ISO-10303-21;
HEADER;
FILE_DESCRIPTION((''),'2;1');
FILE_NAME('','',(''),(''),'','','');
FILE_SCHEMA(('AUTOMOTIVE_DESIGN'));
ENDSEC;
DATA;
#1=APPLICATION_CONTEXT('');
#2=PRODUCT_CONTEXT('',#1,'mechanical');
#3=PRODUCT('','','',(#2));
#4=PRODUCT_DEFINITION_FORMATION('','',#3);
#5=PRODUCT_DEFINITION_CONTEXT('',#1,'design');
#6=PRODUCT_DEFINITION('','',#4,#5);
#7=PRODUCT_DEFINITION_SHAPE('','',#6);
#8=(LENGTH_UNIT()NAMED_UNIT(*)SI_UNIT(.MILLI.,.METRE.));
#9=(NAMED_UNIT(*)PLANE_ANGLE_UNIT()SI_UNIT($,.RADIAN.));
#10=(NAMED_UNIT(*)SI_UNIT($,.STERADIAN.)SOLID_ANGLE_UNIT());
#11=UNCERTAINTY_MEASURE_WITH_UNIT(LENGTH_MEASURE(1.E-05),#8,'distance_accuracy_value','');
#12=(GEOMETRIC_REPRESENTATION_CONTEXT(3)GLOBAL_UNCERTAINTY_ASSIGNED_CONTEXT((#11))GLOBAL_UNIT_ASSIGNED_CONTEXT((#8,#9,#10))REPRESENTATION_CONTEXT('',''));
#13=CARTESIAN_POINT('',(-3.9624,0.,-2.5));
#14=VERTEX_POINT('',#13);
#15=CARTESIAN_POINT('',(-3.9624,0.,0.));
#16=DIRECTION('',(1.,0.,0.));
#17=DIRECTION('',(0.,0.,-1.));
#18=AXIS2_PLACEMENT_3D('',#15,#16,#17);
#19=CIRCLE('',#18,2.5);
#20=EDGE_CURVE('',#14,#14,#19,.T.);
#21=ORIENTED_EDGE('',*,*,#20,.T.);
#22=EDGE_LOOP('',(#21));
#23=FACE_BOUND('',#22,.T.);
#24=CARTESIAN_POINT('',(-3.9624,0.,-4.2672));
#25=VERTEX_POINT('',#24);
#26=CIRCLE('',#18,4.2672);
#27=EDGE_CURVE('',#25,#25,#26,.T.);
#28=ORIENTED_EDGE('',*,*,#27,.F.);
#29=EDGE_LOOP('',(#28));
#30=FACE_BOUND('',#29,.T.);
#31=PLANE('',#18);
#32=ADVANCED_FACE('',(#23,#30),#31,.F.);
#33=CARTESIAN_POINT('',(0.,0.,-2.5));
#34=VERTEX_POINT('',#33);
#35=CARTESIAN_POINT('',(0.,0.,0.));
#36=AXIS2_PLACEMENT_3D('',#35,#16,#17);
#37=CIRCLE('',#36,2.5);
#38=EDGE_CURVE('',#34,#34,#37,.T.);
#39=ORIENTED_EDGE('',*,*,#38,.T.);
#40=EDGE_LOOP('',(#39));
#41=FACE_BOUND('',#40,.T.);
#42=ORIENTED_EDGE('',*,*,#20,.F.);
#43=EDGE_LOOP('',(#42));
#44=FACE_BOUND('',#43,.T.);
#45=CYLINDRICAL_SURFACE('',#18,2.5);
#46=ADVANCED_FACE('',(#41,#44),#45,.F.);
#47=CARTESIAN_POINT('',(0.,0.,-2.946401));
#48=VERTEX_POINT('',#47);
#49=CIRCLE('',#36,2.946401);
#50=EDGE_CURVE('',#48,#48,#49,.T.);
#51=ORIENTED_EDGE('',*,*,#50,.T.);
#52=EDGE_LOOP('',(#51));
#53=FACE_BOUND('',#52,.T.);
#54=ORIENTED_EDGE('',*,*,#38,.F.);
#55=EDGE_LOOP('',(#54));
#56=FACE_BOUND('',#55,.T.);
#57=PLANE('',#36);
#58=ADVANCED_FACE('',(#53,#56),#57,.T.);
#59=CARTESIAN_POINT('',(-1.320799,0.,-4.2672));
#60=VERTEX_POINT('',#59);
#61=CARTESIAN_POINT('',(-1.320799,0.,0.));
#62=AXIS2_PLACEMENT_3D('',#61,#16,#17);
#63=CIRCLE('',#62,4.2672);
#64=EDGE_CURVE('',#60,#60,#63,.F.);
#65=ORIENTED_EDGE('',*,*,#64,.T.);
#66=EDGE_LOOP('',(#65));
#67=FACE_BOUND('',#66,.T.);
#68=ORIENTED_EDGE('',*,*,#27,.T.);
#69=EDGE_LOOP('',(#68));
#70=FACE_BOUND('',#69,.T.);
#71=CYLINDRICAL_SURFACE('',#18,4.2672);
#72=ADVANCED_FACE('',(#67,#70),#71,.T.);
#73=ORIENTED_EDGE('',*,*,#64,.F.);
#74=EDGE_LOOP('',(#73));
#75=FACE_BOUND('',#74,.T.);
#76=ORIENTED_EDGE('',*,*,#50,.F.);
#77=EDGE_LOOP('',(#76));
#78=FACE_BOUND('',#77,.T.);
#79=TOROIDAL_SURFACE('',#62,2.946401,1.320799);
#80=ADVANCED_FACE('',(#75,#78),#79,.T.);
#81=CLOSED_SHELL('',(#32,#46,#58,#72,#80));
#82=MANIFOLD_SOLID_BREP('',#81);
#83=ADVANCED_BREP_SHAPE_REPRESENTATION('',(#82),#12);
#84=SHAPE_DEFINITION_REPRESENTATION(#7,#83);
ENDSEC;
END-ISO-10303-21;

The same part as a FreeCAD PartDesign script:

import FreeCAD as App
import Part
import Sketcher
Q = App.Units.Quantity


def edges_at(feature, points):
    """Names of the edges that pass closest to the given points."""
    edges = feature.Shape.Edges
    near = lambda p: min(range(len(edges)), key=lambda i: edges[i].distToShape(Part.Vertex(*p))[0])
    return sorted({f"Edge{near(p) + 1}" for p in points})

doc = App.newDocument("Part")
body = doc.addObject("PartDesign::Body", "Body")

# Sketch on YZ plane
sketch1 = body.newObject("Sketcher::SketchObject", "Sketch")
sketch1.AttachmentSupport = (doc.getObject("YZ_Plane"), [""])
sketch1.MapMode = "FlatFace"
sketch1.addGeometry([
    Part.Circle(App.Vector(0, 0, 0), App.Vector(0, 0, 1), 4.3),
    Part.Circle(App.Vector(0, 0, 0), App.Vector(0, 0, 1), 2.5),
], False)
sketch1.addConstraint([
    Sketcher.Constraint("Coincident", 0, 3, -1, 1),
    Sketcher.Constraint("Coincident", 1, 3, -1, 1),
    Sketcher.Constraint("Diameter", 0, Q("0.336 in")),
    Sketcher.Constraint("Diameter", 1, Q("5 mm")),
])
pad1 = body.newObject("PartDesign::Pad", "Pad")
pad1.Profile = sketch1
pad1.Length = Q("0.156 in")
pad1.Reversed = True
doc.recompute()

fillet = body.newObject("PartDesign::Fillet", "Fillet")
fillet.Base = (pad1, edges_at(pad1, [(0, 0, 4.267)]))
fillet.Radius = Q("0.052 in")

doc.recompute()
